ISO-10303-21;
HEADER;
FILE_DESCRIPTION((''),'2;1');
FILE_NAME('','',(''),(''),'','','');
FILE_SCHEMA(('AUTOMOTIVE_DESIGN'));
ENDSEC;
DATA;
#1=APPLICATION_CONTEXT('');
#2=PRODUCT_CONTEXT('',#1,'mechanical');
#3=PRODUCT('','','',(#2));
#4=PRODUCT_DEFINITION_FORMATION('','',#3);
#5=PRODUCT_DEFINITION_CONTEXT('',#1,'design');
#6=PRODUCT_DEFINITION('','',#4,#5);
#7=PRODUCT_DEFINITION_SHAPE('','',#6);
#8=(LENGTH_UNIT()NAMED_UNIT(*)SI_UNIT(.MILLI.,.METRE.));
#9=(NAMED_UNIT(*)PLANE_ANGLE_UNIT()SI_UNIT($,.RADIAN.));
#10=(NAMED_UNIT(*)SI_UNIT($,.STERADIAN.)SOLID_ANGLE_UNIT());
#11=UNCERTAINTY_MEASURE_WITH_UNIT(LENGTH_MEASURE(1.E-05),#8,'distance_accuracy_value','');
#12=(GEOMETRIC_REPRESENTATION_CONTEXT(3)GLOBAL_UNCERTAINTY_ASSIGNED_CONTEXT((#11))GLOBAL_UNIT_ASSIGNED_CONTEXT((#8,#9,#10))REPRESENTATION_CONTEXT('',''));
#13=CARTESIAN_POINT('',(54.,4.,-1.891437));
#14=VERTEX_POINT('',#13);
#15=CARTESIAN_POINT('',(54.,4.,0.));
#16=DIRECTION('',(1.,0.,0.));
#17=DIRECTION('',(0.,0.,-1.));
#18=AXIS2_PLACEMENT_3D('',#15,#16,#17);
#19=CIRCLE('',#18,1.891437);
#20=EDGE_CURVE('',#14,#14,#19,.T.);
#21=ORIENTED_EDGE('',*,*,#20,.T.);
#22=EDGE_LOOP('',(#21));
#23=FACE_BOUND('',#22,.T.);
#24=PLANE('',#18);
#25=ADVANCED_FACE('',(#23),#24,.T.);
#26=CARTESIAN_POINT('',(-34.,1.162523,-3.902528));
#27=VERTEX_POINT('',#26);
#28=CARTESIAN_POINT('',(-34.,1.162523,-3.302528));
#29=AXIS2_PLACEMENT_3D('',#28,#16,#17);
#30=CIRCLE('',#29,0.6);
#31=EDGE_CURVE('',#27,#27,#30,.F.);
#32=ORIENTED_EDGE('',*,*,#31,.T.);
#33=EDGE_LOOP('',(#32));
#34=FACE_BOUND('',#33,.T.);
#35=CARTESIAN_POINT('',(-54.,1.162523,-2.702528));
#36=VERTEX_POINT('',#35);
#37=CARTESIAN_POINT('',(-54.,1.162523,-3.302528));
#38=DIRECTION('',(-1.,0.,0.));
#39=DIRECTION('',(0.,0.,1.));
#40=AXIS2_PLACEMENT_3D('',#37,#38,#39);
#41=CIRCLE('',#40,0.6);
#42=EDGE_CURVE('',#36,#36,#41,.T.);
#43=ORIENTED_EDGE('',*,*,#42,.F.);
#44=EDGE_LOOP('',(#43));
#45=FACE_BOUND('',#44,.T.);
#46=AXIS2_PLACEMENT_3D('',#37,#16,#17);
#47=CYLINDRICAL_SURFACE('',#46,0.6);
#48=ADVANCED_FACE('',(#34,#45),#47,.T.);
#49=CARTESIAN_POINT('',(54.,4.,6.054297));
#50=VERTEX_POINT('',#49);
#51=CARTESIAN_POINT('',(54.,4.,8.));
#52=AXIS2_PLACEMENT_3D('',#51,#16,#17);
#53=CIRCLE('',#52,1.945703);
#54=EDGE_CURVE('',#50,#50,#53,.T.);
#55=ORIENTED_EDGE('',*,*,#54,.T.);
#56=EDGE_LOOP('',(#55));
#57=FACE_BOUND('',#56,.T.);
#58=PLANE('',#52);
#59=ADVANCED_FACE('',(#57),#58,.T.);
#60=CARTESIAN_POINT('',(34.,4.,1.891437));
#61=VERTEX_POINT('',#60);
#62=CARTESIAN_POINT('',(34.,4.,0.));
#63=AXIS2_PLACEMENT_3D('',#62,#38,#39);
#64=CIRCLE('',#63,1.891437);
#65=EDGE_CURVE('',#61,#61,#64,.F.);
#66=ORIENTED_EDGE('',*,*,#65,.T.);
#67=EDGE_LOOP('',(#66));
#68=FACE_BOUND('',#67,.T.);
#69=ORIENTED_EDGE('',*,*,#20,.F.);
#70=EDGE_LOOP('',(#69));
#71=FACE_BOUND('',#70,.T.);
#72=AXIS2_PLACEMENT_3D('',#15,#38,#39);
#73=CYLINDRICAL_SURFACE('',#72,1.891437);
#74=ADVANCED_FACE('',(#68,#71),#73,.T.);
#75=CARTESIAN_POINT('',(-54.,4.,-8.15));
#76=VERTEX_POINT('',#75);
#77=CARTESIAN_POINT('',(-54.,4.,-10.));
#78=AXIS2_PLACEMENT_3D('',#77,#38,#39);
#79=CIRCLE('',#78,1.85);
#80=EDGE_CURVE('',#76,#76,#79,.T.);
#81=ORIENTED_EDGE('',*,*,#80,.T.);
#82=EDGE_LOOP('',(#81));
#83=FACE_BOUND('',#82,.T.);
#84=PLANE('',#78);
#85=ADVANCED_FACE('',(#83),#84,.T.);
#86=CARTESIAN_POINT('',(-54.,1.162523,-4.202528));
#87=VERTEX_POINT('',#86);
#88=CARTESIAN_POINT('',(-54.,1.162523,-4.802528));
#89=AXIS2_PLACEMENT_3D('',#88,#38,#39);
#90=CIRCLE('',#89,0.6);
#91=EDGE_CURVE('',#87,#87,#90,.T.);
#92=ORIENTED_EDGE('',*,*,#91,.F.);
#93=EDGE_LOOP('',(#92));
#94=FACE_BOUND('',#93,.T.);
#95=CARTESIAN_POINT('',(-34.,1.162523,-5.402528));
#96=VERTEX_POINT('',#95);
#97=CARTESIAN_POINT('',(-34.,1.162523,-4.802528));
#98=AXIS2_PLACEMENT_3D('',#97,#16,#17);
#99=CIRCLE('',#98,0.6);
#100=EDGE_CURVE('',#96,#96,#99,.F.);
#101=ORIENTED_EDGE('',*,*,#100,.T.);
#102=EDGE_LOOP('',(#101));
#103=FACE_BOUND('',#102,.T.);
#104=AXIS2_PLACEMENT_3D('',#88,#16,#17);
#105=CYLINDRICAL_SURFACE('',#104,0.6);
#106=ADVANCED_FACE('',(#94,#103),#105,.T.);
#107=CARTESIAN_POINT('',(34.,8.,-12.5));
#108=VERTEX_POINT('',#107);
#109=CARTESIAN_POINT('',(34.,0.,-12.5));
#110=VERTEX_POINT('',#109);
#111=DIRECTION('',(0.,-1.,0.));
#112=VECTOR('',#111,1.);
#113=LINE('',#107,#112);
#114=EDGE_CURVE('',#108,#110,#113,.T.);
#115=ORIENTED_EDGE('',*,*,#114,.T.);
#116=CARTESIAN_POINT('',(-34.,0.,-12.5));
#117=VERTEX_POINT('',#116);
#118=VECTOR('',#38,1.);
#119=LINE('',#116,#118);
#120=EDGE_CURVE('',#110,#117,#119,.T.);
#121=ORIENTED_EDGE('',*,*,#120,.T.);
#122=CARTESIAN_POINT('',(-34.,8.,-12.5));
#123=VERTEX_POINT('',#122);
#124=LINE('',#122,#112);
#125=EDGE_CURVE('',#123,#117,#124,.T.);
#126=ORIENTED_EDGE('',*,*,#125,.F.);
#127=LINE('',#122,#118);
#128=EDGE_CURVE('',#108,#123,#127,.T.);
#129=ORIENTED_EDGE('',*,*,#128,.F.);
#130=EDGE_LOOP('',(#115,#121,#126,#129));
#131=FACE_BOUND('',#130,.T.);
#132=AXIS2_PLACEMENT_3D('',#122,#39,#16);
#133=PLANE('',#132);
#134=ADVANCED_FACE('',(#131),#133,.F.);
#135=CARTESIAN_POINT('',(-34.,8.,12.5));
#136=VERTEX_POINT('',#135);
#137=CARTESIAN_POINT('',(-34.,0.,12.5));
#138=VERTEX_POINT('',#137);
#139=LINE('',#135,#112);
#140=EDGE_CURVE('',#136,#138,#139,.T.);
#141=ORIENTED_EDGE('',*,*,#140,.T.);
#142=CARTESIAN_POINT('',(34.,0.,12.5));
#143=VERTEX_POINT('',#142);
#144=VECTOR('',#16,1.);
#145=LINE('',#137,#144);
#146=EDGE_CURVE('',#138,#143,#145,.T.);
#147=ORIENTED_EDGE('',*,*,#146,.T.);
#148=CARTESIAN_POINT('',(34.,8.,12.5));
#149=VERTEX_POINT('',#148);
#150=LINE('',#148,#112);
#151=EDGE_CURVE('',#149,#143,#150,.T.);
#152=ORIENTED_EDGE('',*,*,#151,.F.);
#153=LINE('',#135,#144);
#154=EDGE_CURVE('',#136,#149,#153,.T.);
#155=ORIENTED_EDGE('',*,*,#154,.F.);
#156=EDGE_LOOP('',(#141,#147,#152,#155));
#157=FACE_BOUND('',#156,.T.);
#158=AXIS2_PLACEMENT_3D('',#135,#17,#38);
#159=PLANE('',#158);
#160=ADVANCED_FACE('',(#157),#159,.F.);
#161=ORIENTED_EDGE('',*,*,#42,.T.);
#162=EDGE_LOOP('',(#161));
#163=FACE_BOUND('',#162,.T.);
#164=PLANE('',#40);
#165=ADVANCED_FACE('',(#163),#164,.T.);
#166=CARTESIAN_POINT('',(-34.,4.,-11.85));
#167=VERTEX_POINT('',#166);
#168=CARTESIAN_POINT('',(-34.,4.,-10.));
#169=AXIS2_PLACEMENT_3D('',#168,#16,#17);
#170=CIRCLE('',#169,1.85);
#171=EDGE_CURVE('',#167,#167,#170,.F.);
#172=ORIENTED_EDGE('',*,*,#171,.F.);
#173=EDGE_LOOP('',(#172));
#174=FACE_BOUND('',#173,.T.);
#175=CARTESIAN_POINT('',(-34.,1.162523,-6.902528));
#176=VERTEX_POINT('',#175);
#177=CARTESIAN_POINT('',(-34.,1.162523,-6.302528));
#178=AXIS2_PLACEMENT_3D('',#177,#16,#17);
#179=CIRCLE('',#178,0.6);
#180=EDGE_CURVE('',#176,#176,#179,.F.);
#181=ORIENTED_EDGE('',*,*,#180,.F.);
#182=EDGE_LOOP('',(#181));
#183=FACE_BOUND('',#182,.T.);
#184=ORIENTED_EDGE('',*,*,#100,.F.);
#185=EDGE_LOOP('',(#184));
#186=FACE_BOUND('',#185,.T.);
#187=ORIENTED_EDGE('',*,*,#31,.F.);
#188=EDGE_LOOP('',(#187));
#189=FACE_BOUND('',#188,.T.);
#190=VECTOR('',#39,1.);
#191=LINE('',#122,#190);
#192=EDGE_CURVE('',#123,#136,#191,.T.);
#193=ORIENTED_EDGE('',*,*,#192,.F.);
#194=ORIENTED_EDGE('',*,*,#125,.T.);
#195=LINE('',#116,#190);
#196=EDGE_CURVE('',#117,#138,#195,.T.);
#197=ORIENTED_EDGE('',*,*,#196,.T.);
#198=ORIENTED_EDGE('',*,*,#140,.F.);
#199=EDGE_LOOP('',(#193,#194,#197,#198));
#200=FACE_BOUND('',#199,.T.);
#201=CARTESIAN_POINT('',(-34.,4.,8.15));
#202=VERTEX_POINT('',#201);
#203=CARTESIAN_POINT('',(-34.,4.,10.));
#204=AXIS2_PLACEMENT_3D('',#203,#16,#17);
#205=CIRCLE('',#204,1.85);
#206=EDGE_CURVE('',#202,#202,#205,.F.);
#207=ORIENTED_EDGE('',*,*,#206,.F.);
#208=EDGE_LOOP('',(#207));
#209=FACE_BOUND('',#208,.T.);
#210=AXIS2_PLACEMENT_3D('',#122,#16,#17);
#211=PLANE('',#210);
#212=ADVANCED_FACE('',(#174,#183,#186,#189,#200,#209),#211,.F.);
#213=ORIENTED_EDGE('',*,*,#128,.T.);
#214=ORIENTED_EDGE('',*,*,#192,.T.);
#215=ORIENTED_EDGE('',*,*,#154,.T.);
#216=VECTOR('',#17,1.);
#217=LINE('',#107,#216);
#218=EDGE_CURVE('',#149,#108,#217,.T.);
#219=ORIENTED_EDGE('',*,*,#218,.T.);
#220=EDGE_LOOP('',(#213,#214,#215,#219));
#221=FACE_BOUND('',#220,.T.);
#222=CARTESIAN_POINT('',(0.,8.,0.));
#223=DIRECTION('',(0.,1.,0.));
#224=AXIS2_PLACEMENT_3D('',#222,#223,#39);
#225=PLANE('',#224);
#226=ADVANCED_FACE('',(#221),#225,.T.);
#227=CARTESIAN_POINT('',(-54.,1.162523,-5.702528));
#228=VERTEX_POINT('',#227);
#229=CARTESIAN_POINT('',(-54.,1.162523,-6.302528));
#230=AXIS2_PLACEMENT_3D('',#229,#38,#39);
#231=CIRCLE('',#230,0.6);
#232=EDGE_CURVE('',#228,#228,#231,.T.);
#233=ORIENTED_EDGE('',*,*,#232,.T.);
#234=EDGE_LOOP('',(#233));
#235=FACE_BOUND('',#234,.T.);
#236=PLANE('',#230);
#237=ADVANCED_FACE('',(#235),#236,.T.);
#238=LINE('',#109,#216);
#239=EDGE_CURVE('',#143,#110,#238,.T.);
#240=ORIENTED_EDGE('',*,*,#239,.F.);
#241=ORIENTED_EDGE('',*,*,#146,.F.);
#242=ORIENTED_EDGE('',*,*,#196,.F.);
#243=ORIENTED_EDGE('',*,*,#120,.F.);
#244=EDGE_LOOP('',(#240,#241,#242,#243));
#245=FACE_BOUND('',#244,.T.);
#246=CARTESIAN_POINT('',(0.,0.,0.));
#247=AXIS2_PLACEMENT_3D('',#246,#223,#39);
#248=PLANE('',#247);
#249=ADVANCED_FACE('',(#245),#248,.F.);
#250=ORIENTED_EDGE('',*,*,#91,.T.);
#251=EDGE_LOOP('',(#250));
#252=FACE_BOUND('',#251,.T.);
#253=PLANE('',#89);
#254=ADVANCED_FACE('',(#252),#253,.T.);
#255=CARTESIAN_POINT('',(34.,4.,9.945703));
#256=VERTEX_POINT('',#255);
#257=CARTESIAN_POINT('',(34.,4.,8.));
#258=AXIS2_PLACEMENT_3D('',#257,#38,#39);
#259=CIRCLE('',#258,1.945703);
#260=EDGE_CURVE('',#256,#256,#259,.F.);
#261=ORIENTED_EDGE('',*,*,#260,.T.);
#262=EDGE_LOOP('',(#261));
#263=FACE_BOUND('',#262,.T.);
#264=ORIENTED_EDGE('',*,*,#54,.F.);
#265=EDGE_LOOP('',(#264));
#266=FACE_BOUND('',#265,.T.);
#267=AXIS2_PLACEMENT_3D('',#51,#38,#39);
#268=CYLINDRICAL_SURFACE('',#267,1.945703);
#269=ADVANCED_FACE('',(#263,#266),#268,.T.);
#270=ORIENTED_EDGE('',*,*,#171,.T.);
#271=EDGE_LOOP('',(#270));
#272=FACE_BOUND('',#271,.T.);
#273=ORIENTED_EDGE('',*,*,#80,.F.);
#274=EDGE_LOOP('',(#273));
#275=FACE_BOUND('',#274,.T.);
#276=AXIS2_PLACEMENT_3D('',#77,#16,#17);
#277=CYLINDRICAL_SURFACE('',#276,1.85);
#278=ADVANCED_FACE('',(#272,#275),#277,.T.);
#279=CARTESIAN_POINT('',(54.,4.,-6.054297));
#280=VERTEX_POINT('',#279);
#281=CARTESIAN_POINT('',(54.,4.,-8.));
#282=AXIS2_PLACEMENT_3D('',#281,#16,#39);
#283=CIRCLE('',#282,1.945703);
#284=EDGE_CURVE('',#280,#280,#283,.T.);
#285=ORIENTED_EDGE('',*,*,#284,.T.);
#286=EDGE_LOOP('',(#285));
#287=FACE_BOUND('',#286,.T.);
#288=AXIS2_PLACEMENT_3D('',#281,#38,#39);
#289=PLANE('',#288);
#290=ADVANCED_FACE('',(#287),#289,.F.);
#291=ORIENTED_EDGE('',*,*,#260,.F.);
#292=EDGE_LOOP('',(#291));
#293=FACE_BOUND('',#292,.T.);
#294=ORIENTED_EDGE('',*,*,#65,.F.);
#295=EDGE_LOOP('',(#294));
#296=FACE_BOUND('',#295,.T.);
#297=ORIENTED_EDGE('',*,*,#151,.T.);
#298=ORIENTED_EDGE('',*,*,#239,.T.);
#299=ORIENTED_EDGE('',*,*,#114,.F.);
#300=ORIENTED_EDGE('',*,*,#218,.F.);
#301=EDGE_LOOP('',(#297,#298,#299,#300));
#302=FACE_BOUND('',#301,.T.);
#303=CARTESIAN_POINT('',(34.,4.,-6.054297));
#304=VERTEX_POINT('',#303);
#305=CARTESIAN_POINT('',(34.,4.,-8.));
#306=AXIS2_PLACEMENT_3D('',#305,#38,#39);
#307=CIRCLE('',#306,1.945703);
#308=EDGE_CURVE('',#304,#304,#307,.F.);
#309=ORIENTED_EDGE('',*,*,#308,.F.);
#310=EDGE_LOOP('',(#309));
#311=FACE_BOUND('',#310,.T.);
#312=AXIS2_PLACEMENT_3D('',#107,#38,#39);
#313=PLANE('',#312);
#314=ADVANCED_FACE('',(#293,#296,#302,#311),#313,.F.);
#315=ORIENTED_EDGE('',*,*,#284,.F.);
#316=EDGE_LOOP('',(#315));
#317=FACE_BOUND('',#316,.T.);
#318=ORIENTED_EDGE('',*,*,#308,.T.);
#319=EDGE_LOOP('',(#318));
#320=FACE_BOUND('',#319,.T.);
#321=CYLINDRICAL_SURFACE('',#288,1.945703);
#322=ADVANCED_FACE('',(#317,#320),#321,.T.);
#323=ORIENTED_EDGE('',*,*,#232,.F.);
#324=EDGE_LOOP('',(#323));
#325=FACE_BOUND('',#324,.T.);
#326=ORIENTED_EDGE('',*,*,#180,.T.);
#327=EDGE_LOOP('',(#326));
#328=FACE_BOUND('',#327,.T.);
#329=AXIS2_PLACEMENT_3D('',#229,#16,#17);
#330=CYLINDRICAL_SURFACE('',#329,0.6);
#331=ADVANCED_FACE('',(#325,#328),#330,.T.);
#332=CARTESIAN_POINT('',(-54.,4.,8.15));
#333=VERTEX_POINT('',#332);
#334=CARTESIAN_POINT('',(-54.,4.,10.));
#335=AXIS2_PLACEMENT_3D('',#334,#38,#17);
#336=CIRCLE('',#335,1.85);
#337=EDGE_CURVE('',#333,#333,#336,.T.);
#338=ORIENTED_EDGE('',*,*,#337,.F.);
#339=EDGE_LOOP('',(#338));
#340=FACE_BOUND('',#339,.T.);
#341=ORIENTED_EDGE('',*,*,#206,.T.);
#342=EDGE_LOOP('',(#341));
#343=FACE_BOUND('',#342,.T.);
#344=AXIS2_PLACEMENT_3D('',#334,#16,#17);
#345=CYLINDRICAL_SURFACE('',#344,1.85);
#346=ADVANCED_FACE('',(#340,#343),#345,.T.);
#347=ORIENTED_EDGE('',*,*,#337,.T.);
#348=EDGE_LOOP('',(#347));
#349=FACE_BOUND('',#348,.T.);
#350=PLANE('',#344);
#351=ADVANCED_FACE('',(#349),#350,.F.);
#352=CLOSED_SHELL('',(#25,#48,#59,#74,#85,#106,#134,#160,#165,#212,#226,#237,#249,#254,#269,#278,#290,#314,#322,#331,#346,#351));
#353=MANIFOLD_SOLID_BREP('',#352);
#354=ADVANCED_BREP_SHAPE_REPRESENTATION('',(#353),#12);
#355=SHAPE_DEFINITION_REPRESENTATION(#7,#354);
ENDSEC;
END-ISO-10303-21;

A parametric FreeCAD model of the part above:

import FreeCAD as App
import Part
import Sketcher
from FreeCAD import Vector
Q = App.Units.Quantity


def add_polygon(sketch, points):
    """Adds a closed chain of lines whose ends are joined by coincident constraints."""
    first, n = sketch.GeometryCount, len(points)
    for a, b in zip(points, points[1:] + points[:1]):
        sketch.addGeometry(Part.LineSegment(App.Vector(*a, 0), App.Vector(*b, 0)), False)
    for i in range(n):
        sketch.addConstraint(Sketcher.Constraint("Coincident", first + i, 2, first + (i + 1) % n, 1))

doc = App.newDocument("Part")
params = doc.addObject("Spreadsheet::Sheet", "Params")
for row, (alias, value) in enumerate([
    ("sketch1_width", "68 mm"),
    ("sketch1_height", "25 mm"),
    ("pad1_length", "8 mm"),
    ("sketch2_diameter", "3.7 mm"),
    ("sketch2_diameter2", "1.2 mm"),
    ("pad2_length", "20 mm"),
    ("pad3_length", "20 mm"),
], start=1):
    params.set(f"A{row}", alias)
    params.set(f"B{row}", "=" + value)
    params.setAlias(f"B{row}", alias)

body = doc.addObject("PartDesign::Body", "Body")

sketch1 = doc.addObject("Sketcher::SketchObject", "Sketch")
body.addObject(sketch1)
sketch1.AttachmentSupport = (doc.XZ_Plane, [""])
sketch1.MapMode = "FlatFace"
add_polygon(sketch1, [(-34, -12.5), (-34, 12.5), (34, 12.5), (34, -12.5)])
sketch1.addConstraint([
    Sketcher.Constraint("Vertical", 0),
    Sketcher.Constraint("Horizontal", 1),
    Sketcher.Constraint("Vertical", 2),
    Sketcher.Constraint("Horizontal", 3),
    Sketcher.Constraint("Symmetric", 0, 2, 2, 2, -1, 1),
    Sketcher.Constraint("DistanceX", 1, 1, 1, 2, Q("68 mm")),
    Sketcher.Constraint("DistanceY", 0, 1, 0, 2, Q("25 mm")),
])
sketch1.setExpression("Constraints[9]", "Params.sketch1_width")
sketch1.setExpression("Constraints[10]", "Params.sketch1_height")
pad1 = doc.addObject("PartDesign::Pad", "Pad")
body.addObject(pad1)
pad1.Profile = sketch1
pad1.setExpression("Length", "Params.pad1_length")
pad1.Reversed = True

sketch2 = doc.addObject("Sketcher::SketchObject", "Sketch001")
body.addObject(sketch2)
sketch2.AttachmentSupport = (doc.YZ_Plane, [""])
sketch2.MapMode = "FlatFace"
sketch2.AttachmentOffset = App.Placement(Vector(0, 0, -34), App.Rotation())
sketch2.addGeometry([
    Part.Circle(Vector(4, -10, 0), Vector(0, 0, 1), 1.85),
    Part.Circle(Vector(4, 10, 0), Vector(0, 0, 1), 1.85),
    Part.Circle(Vector(1.162523, -6.302528, 0), Vector(0, 0, 1), 0.6),
    Part.Circle(Vector(1.162523, -4.802528, 0), Vector(0, 0, 1), 0.6),
    Part.Circle(Vector(1.162523, -3.302528, 0), Vector(0, 0, 1), 0.6),
], False)
sketch2.addConstraint([
    Sketcher.Constraint("Equal", 0, 1),
    Sketcher.Constraint("Equal", 2, 3),
    Sketcher.Constraint("Equal", 3, 4),
    Sketcher.Constraint("Symmetric", 0, 3, 1, 3, -1),
    Sketcher.Constraint("Vertical", 2, 3, 3, 3),
    Sketcher.Constraint("Vertical", 3, 3, 4, 3),
    Sketcher.Constraint("Diameter", 0, Q("3.7 mm")),
    Sketcher.Constraint("Diameter", 2, Q("1.2 mm")),
    Sketcher.Constraint("DistanceX", -1, 1, 0, 3, Q("4 mm")),
    Sketcher.Constraint("DistanceY", 0, 3, -1, 1, Q("10 mm")),
    Sketcher.Constraint("DistanceY", 2, 3, 4, 3, Q("3 mm")),
    Sketcher.Constraint("DistanceY", 2, 3, 3, 3, Q("1.5 mm")),
    Sketcher.Constraint("DistanceY", 2, 3, -1, 1, Q("6.302528 mm")),
    Sketcher.Constraint("DistanceX", -1, 1, 2, 3, Q("1.162523 mm")),
])
sketch2.setExpression("Constraints[6]", "Params.sketch2_diameter")
sketch2.setExpression("Constraints[7]", "Params.sketch2_diameter2")
pad2 = doc.addObject("PartDesign::Pad", "Pad001")
body.addObject(pad2)
pad2.Profile = sketch2
pad2.setExpression("Length", "Params.pad2_length")
pad2.Reversed = True

sketch3 = doc.addObject("Sketcher::SketchObject", "Sketch002")
body.addObject(sketch3)
sketch3.AttachmentSupport = (doc.YZ_Plane, [""])
sketch3.MapMode = "FlatFace"
sketch3.AttachmentOffset = App.Placement(Vector(0, 0, 34), App.Rotation())
sketch3.addGeometry([
    Part.Circle(Vector(4, 8, 0), Vector(0, 0, 1), 1.945703),
    Part.Circle(Vector(4, 0, 0), Vector(0, 0, 1), 1.891437),
    Part.Circle(Vector(4, -8, 0), Vector(0, 0, 1), 1.945703),
], False)
sketch3.addConstraint([
    Sketcher.Constraint("Equal", 0, 2),
    Sketcher.Constraint("Symmetric", 0, 3, 2, 3, -1),
    Sketcher.Constraint("PointOnObject", 1, 3, -1),
    Sketcher.Constraint("Vertical", 0, 3, 1, 3),
    Sketcher.Constraint("DistanceX", -1, 1, 0, 3, Q("4 mm")),
    Sketcher.Constraint("DistanceY", -1, 1, 0, 3, Q("8 mm")),
    Sketcher.Constraint("Diameter", 0, Q("3.891405 mm")),
    Sketcher.Constraint("Diameter", 1, Q("3.782874 mm")),
])
pad3 = doc.addObject("PartDesign::Pad", "Pad002")
body.addObject(pad3)
pad3.Profile = sketch3
pad3.setExpression("Length", "Params.pad3_length")

doc.recompute()
